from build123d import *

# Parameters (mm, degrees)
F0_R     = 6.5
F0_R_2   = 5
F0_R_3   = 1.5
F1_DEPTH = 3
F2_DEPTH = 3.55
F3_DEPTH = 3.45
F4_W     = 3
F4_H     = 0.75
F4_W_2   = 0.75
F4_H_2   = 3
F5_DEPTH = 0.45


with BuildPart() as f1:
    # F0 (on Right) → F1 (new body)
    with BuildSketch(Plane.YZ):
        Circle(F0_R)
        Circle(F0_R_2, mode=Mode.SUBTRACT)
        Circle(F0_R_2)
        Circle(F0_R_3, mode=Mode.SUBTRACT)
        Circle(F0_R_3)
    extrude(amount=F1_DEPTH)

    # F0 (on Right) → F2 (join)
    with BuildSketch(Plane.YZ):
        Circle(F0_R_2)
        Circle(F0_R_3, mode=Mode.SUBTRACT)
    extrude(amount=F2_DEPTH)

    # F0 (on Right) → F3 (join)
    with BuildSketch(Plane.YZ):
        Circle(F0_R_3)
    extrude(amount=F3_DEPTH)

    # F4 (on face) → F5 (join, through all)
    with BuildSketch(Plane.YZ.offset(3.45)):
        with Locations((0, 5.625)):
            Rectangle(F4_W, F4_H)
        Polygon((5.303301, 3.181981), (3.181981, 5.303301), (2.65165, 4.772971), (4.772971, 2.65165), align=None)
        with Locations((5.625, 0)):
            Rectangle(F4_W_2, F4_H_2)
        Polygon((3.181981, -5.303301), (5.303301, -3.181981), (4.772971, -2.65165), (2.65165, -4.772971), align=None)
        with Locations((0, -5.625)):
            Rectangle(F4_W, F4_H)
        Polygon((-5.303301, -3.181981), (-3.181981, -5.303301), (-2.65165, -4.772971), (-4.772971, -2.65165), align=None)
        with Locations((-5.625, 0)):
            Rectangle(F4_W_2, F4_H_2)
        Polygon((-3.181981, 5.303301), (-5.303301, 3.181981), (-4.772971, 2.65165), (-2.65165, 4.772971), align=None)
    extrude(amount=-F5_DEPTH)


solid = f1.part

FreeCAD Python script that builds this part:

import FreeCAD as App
import Part
import Sketcher
Q = App.Units.Quantity

doc = App.newDocument("Part")
body = doc.addObject("PartDesign::Body", "Body")

# Sketch on YZ plane
sketch1 = body.newObject("Sketcher::SketchObject", "Sketch")
sketch1.AttachmentSupport = (doc.getObject("YZ_Plane"), [""])
sketch1.MapMode = "FlatFace"
sketch1.addGeometry(Part.Circle(App.Vector(0, 0, 0), App.Vector(0, 0, 1), 6), False)
sketch1.addConstraint(Sketcher.Constraint("Coincident", 0, 3, -1, 1))
sketch1.addConstraint(Sketcher.Constraint("Diameter", 0, Q("13 mm")))
pad1 = body.newObject("PartDesign::Pad", "Pad")
pad1.Profile = sketch1
pad1.Length = 3

# Sketch on YZ plane
sketch2 = body.newObject("Sketcher::SketchObject", "Sketch001")
sketch2.AttachmentSupport = (doc.getObject("YZ_Plane"), [""])
sketch2.MapMode = "FlatFace"
sketch2.addGeometry(Part.Circle(App.Vector(0, 0, 0), App.Vector(0, 0, 1), 5), False)
sketch2.addGeometry(Part.Circle(App.Vector(0, 0, 0), App.Vector(0, 0, 1), 1.5), False)
sketch2.addConstraint(Sketcher.Constraint("Coincident", 0, 3, -1, 1))
sketch2.addConstraint(Sketcher.Constraint("Coincident", 1, 3, -1, 1))
sketch2.addConstraint(Sketcher.Constraint("Diameter", 0, Q("10 mm")))
sketch2.addConstraint(Sketcher.Constraint("Diameter", 1, Q("3 mm")))
pad2 = body.newObject("PartDesign::Pad", "Pad001")
pad2.Profile = sketch2
pad2.Length = 3.55

# Sketch on YZ plane
sketch3 = body.newObject("Sketcher::SketchObject", "Sketch002")
sketch3.AttachmentSupport = (doc.getObject("YZ_Plane"), [""])
sketch3.MapMode = "FlatFace"
sketch3.addGeometry(Part.Circle(App.Vector(0, 0, 0), App.Vector(0, 0, 1), 1.5), False)
sketch3.addConstraint(Sketcher.Constraint("Coincident", 0, 3, -1, 1))
sketch3.addConstraint(Sketcher.Constraint("Diameter", 0, Q("3 mm")))
pad3 = body.newObject("PartDesign::Pad", "Pad002")
pad3.Profile = sketch3
pad3.Length = 3.45

# Sketch on YZ plane
sketch4 = body.newObject("Sketcher::SketchObject", "Sketch003")
sketch4.AttachmentSupport = (doc.getObject("YZ_Plane"), [""])
sketch4.MapMode = "FlatFace"
sketch4.AttachmentOffset = App.Placement(App.Vector(0, 0, 3.45), App.Rotation())
sketch4.addGeometry(Part.LineSegment(App.Vector(-1.5, 6, 0), App.Vector(-1.5, 5.2, 0)), False)
sketch4.addGeometry(Part.LineSegment(App.Vector(-1.5, 5.2, 0), App.Vector(1.5, 5.2, 0)), False)
sketch4.addGeometry(Part.LineSegment(App.Vector(1.5, 5.2, 0), App.Vector(1.5, 6, 0)), False)
sketch4.addGeometry(Part.LineSegment(App.Vector(1.5, 6, 0), App.Vector(-1.5, 6, 0)), False)
sketch4.addGeometry(Part.LineSegment(App.Vector(5.3, 3.2, 0), App.Vector(3.2, 5.3, 0)), False)
sketch4.addGeometry(Part.LineSegment(App.Vector(3.2, 5.3, 0), App.Vector(2.7, 4.8, 0)), False)
sketch4.addGeometry(Part.LineSegment(App.Vector(2.7, 4.8, 0), App.Vector(4.8, 2.7, 0)), False)
sketch4.addGeometry(Part.LineSegment(App.Vector(4.8, 2.7, 0), App.Vector(5.3, 3.2, 0)), False)
sketch4.addGeometry(Part.LineSegment(App.Vector(5.2, 1.5, 0), App.Vector(5.2, -1.5, 0)), False)
sketch4.addGeometry(Part.LineSegment(App.Vector(5.2, -1.5, 0), App.Vector(6, -1.5, 0)), False)
sketch4.addGeometry(Part.LineSegment(App.Vector(6, -1.5, 0), App.Vector(6, 1.5, 0)), False)
sketch4.addGeometry(Part.LineSegment(App.Vector(6, 1.5, 0), App.Vector(5.2, 1.5, 0)), False)
sketch4.addGeometry(Part.LineSegment(App.Vector(3.2, -5.3, 0), App.Vector(5.3, -3.2, 0)), False)
sketch4.addGeometry(Part.LineSegment(App.Vector(5.3, -3.2, 0), App.Vector(4.8, -2.7, 0)), False)
sketch4.addGeometry(Part.LineSegment(App.Vector(4.8, -2.7, 0), App.Vector(2.7, -4.8, 0)), False)
sketch4.addGeometry(Part.LineSegment(App.Vector(2.7, -4.8, 0), App.Vector(3.2, -5.3, 0)), False)
sketch4.addGeometry(Part.LineSegment(App.Vector(-1.5, -5.2, 0), App.Vector(-1.5, -6, 0)), False)
sketch4.addGeometry(Part.LineSegment(App.Vector(-1.5, -6, 0), App.Vector(1.5, -6, 0)), False)
sketch4.addGeometry(Part.LineSegment(App.Vector(1.5, -6, 0), App.Vector(1.5, -5.2, 0)), False)
sketch4.addGeometry(Part.LineSegment(App.Vector(1.5, -5.2, 0), App.Vector(-1.5, -5.2, 0)), False)
sketch4.addGeometry(Part.LineSegment(App.Vector(-5.3, -3.2, 0), App.Vector(-3.2, -5.3, 0)), False)
sketch4.addGeometry(Part.LineSegment(App.Vector(-3.2, -5.3, 0), App.Vector(-2.7, -4.8, 0)), False)
sketch4.addGeometry(Part.LineSegment(App.Vector(-2.7, -4.8, 0), App.Vector(-4.8, -2.7, 0)), False)
sketch4.addGeometry(Part.LineSegment(App.Vector(-4.8, -2.7, 0), App.Vector(-5.3, -3.2, 0)), False)
sketch4.addGeometry(Part.LineSegment(App.Vector(-6, 1.5, 0), App.Vector(-6, -1.5, 0)), False)
sketch4.addGeometry(Part.LineSegment(App.Vector(-6, -1.5, 0), App.Vector(-5.2, -1.5, 0)), False)
sketch4.addGeometry(Part.LineSegment(App.Vector(-5.2, -1.5, 0), App.Vector(-5.2, 1.5, 0)), False)
sketch4.addGeometry(Part.LineSegment(App.Vector(-5.2, 1.5, 0), App.Vector(-6, 1.5, 0)), False)
sketch4.addGeometry(Part.LineSegment(App.Vector(-3.2, 5.3, 0), App.Vector(-5.3, 3.2, 0)), False)
sketch4.addGeometry(Part.LineSegment(App.Vector(-5.3, 3.2, 0), App.Vector(-4.8, 2.7, 0)), False)
sketch4.addGeometry(Part.LineSegment(App.Vector(-4.8, 2.7, 0), App.Vector(-2.7, 4.8, 0)), False)
sketch4.addGeometry(Part.LineSegment(App.Vector(-2.7, 4.8, 0), App.Vector(-3.2, 5.3, 0)), False)
sketch4.addConstraint(Sketcher.Constraint("Coincident", 0, 2, 1, 1))
sketch4.addConstraint(Sketcher.Constraint("Coincident", 1, 2, 2, 1))
sketch4.addConstraint(Sketcher.Constraint("Coincident", 2, 2, 3, 1))
sketch4.addConstraint(Sketcher.Constraint("Coincident", 3, 2, 0, 1))
sketch4.addConstraint(Sketcher.Constraint("Coincident", 4, 2, 5, 1))
sketch4.addConstraint(Sketcher.Constraint("Coincident", 5, 2, 6, 1))
sketch4.addConstraint(Sketcher.Constraint("Coincident", 6, 2, 7, 1))
sketch4.addConstraint(Sketcher.Constraint("Coincident", 7, 2, 4, 1))
sketch4.addConstraint(Sketcher.Constraint("Coincident", 8, 2, 9, 1))
sketch4.addConstraint(Sketcher.Constraint("Coincident", 9, 2, 10, 1))
sketch4.addConstraint(Sketcher.Constraint("Coincident", 10, 2, 11, 1))
sketch4.addConstraint(Sketcher.Constraint("Coincident", 11, 2, 8, 1))
sketch4.addConstraint(Sketcher.Constraint("Coincident", 12, 2, 13, 1))
sketch4.addConstraint(Sketcher.Constraint("Coincident", 13, 2, 14, 1))
sketch4.addConstraint(Sketcher.Constraint("Coincident", 14, 2, 15, 1))
sketch4.addConstraint(Sketcher.Constraint("Coincident", 15, 2, 12, 1))
sketch4.addConstraint(Sketcher.Constraint("Coincident", 16, 2, 17, 1))
sketch4.addConstraint(Sketcher.Constraint("Coincident", 17, 2, 18, 1))
sketch4.addConstraint(Sketcher.Constraint("Coincident", 18, 2, 19, 1))
sketch4.addConstraint(Sketcher.Constraint("Coincident", 19, 2, 16, 1))
sketch4.addConstraint(Sketcher.Constraint("Coincident", 20, 2, 21, 1))
sketch4.addConstraint(Sketcher.Constraint("Coincident", 21, 2, 22, 1))
sketch4.addConstraint(Sketcher.Constraint("Coincident", 22, 2, 23, 1))
sketch4.addConstraint(Sketcher.Constraint("Coincident", 23, 2, 20, 1))
sketch4.addConstraint(Sketcher.Constraint("Coincident", 24, 2, 25, 1))
sketch4.addConstraint(Sketcher.Constraint("Coincident", 25, 2, 26, 1))
sketch4.addConstraint(Sketcher.Constraint("Coincident", 26, 2, 27, 1))
sketch4.addConstraint(Sketcher.Constraint("Coincident", 27, 2, 24, 1))
sketch4.addConstraint(Sketcher.Constraint("Coincident", 28, 2, 29, 1))
sketch4.addConstraint(Sketcher.Constraint("Coincident", 29, 2, 30, 1))
sketch4.addConstraint(Sketcher.Constraint("Coincident", 30, 2, 31, 1))
sketch4.addConstraint(Sketcher.Constraint("Coincident", 31, 2, 28, 1))
sketch4.addConstraint(Sketcher.Constraint("Vertical", 0))
sketch4.addConstraint(Sketcher.Constraint("Horizontal", 1))
sketch4.addConstraint(Sketcher.Constraint("Vertical", 2))
sketch4.addConstraint(Sketcher.Constraint("Horizontal", 3))
sketch4.addConstraint(Sketcher.Constraint("Vertical", 8))
sketch4.addConstraint(Sketcher.Constraint("Horizontal", 9))
sketch4.addConstraint(Sketcher.Constraint("Vertical", 10))
sketch4.addConstraint(Sketcher.Constraint("Horizontal", 11))
sketch4.addConstraint(Sketcher.Constraint("Vertical", 16))
sketch4.addConstraint(Sketcher.Constraint("Horizontal", 17))
sketch4.addConstraint(Sketcher.Constraint("Vertical", 18))
sketch4.addConstraint(Sketcher.Constraint("Horizontal", 19))
sketch4.addConstraint(Sketcher.Constraint("Vertical", 24))
sketch4.addConstraint(Sketcher.Constraint("Horizontal", 25))
sketch4.addConstraint(Sketcher.Constraint("Vertical", 26))
sketch4.addConstraint(Sketcher.Constraint("Horizontal", 27))
sketch4.addConstraint(Sketcher.Constraint("Symmetric", 2, 2, 16, 2, -1, 1))
sketch4.addConstraint(Sketcher.Constraint("Symmetric", 0, 2, 18, 2, -1, 1))
sketch4.addConstraint(Sketcher.Constraint("Symmetric", 4, 2, 20, 2, -1, 1))
sketch4.addConstraint(Sketcher.Constraint("Symmetric", 5, 2, 21, 2, -1, 1))
sketch4.addConstraint(Sketcher.Constraint("Symmetric", 6, 2, 22, 2, -1, 1))
sketch4.addConstraint(Sketcher.Constraint("Symmetric", 7, 2, 23, 2, -1, 1))
sketch4.addConstraint(Sketcher.Constraint("Symmetric", 10, 2, 24, 2, -1, 1))
sketch4.addConstraint(Sketcher.Constraint("Symmetric", 8, 2, 26, 2, -1, 1))
sketch4.addConstraint(Sketcher.Constraint("Symmetric", 12, 2, 28, 2, -1, 1))
sketch4.addConstraint(Sketcher.Constraint("Symmetric", 13, 2, 29, 2, -1, 1))
sketch4.addConstraint(Sketcher.Constraint("Symmetric", 14, 2, 30, 2, -1, 1))
sketch4.addConstraint(Sketcher.Constraint("Symmetric", 15, 2, 31, 2, -1, 1))
sketch4.addConstraint(Sketcher.Constraint("Symmetric", 15, 2, 20, 2, -2))
sketch4.addConstraint(Sketcher.Constraint("Symmetric", 14, 2, 21, 2, -2))
sketch4.addConstraint(Sketcher.Constraint("Symmetric", 13, 2, 22, 2, -2))
sketch4.addConstraint(Sketcher.Constraint("Symmetric", 12, 2, 23, 2, -2))
sketch4.addConstraint(Sketcher.Constraint("Perpendicular", 4, 5))
sketch4.addConstraint(Sketcher.Constraint("Perpendicular", 5, 6))
sketch4.addConstraint(Sketcher.Constraint("Perpendicular", 6, 7))
sketch4.addConstraint(Sketcher.Constraint("Parallel", 7, 12))
sketch4.addConstraint(Sketcher.Constraint("Horizontal", 9, 2, 24, 2))
sketch4.addConstraint(Sketcher.Constraint("Vertical", 3, 2, 16, 2))
sketch4.addConstraint(Sketcher.Constraint("Equal", 27, 0))
sketch4.addConstraint(Sketcher.Constraint("Equal", 19, 8))
sketch4.addConstraint(Sketcher.Constraint("DistanceX", 1, 1, 1, 2, Q("3 mm")))
sketch4.addConstraint(Sketcher.Constraint("Distance", 4, Q("3 mm")))
sketch4.addConstraint(Sketcher.Constraint("DistanceY", -1, 1, 2, 2, Q("6 mm")))
sketch4.addConstraint(Sketcher.Constraint("DistanceX", -1, 1, 9, 2, Q("6 mm")))
sketch4.addConstraint(Sketcher.Constraint("DistanceX", 9, 1, 9, 2, Q("0.75 mm")))
sketch4.addConstraint(Sketcher.Constraint("Distance", 5, Q("0.750001 mm")))
sketch4.addConstraint(Sketcher.Constraint("DistanceY", -1, 1, 4, 2, Q("5.303301 mm")))
sketch4.addConstraint(Sketcher.Constraint("DistanceX", -1, 1, 7, 2, Q("5.303301 mm")))
pad4 = body.newObject("PartDesign::Pad", "Pad003")
pad4.Profile = sketch4
pad4.Type = "UpToLast"
pad4.Reversed = True

doc.recompute()
